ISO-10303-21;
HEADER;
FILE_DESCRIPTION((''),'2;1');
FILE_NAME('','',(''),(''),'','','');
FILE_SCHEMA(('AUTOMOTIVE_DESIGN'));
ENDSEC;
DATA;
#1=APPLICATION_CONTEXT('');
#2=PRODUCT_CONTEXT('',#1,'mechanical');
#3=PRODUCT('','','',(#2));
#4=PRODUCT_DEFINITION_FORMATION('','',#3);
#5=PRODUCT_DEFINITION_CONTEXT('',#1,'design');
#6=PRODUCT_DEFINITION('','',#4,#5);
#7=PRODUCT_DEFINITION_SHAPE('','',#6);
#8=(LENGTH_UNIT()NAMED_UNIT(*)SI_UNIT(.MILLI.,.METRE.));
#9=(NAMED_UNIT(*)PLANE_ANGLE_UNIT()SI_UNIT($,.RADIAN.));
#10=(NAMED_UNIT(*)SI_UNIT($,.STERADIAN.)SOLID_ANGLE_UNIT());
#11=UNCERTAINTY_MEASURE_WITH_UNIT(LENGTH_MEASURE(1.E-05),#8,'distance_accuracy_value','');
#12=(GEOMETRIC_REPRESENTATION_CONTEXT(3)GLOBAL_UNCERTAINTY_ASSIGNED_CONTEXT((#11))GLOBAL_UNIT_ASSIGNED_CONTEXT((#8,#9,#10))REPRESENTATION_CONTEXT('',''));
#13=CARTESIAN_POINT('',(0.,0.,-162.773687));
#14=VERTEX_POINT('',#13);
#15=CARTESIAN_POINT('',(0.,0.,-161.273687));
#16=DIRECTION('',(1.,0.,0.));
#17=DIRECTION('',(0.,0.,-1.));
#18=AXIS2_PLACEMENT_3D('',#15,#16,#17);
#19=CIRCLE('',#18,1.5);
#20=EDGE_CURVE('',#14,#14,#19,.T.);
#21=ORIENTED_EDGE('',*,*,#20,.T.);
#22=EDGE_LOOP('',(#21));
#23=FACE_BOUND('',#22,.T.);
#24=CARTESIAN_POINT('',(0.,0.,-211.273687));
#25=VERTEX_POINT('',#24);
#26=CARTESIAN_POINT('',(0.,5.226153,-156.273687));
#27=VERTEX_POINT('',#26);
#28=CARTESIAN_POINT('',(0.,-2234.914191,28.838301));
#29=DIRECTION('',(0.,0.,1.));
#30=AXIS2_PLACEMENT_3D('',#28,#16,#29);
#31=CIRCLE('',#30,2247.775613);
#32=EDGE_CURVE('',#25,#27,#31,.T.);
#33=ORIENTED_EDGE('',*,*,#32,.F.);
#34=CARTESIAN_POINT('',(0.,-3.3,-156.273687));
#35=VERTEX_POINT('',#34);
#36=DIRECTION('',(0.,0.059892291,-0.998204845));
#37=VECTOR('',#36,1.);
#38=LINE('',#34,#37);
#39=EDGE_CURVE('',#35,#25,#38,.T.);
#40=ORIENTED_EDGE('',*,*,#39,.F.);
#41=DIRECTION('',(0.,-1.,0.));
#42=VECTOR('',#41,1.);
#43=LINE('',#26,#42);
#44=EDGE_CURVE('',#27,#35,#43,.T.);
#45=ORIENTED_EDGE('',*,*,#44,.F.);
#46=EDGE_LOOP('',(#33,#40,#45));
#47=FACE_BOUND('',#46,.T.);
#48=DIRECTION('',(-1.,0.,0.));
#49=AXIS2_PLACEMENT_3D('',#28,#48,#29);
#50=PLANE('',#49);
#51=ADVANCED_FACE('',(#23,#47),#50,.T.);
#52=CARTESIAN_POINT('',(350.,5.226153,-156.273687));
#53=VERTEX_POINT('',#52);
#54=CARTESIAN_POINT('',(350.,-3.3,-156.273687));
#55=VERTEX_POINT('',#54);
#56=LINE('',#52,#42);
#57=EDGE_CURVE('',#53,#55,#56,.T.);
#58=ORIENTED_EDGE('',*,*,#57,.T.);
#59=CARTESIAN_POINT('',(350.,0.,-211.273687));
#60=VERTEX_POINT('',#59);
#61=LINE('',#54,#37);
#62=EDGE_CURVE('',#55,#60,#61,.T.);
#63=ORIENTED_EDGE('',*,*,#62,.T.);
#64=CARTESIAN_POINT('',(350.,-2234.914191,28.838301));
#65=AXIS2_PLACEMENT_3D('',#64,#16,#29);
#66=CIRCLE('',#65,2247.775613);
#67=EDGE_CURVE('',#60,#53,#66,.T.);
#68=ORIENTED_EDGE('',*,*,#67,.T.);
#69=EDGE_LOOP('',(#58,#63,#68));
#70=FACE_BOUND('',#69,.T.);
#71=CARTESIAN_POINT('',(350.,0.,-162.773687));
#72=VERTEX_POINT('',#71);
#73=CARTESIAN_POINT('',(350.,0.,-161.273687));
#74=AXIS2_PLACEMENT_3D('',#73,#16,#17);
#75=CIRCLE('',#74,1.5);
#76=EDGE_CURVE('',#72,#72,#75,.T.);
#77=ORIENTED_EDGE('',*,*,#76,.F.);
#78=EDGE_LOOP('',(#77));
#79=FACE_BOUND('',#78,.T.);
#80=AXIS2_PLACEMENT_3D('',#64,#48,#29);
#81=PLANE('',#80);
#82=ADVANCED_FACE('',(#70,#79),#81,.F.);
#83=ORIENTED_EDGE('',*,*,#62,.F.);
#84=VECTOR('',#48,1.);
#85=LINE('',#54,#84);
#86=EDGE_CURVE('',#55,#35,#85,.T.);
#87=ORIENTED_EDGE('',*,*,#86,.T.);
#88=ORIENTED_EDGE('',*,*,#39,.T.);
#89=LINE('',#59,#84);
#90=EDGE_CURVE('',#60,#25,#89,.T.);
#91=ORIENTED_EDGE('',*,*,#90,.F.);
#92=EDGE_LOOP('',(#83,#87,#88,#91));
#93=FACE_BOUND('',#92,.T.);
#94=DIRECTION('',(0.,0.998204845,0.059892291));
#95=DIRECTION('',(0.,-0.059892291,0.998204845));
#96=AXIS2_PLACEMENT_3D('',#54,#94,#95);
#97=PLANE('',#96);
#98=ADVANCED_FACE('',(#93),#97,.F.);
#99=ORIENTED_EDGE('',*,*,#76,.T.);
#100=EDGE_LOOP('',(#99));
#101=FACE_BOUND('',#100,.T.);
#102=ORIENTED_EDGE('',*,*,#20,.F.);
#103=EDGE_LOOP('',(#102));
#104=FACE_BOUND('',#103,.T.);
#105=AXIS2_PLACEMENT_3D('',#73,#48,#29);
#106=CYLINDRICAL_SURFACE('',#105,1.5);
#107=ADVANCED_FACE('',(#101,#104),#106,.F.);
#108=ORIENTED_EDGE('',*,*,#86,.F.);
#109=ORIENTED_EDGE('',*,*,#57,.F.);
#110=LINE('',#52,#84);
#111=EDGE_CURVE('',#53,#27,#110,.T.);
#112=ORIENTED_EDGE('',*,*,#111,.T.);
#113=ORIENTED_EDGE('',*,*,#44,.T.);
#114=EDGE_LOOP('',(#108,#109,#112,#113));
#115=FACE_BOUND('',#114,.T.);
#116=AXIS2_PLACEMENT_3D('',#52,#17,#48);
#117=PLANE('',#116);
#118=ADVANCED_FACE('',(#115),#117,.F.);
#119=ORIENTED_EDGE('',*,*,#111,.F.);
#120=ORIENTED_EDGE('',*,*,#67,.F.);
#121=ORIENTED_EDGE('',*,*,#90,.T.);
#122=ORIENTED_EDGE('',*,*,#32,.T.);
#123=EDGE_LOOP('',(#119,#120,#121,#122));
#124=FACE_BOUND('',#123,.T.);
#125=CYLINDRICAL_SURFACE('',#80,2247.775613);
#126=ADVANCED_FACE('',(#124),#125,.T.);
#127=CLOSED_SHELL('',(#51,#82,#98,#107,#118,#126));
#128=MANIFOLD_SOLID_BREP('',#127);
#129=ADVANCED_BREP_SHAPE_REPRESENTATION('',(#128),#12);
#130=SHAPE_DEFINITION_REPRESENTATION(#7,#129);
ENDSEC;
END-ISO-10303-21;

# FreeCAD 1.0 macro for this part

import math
import FreeCAD as App
import Part
import Sketcher

doc = App.newDocument("Part")
params = doc.addObject("Spreadsheet::Sheet", "Params")
for row, (alias, value) in enumerate([
    ("sketch1_diameter", "3 mm"),
    ("pad1_length", "350 mm"),
], start=1):
    params.set(f"A{row}", alias)
    params.set(f"B{row}", "=" + value)
    params.setAlias(f"B{row}", alias)

body = doc.addObject("PartDesign::Body", "Body")

# Sketch on YZ plane
sketch1 = body.newObject("Sketcher::SketchObject", "Sketch")
sketch1.AttachmentSupport = (doc.getObject("YZ_Plane"), [""])
sketch1.MapMode = "FlatFace"
sketch1.addGeometry([
    Part.LineSegment(App.Vector(-3.3, -156.273687, 0), App.Vector(0, -211.273687, 0)),
    Part.ArcOfCircle(Part.Circle(App.Vector(-2234.914188, 28.8383, 0), App.Vector(0, 0, 1), 2247.775611), math.radians(-6.132153), math.radians(-4.723853)),
    Part.LineSegment(App.Vector(5.226153, -156.273687, 0), App.Vector(-3.3, -156.273687, 0)),
    Part.Circle(App.Vector(0, -161.273687, 0), App.Vector(0, 0, 1), 1.5),
], False)
sketch1.addConstraint([
    Sketcher.Constraint("Coincident", 0, 2, 1, 1),
    Sketcher.Constraint("Coincident", 1, 2, 2, 1),
    Sketcher.Constraint("Coincident", 2, 2, 0, 1),
    Sketcher.Constraint("Horizontal", 2),
    Sketcher.Constraint("PointOnObject", 3, 3, -2),
    Sketcher.Constraint("PointOnObject", 0, 2, -2),
    Sketcher.Constraint("Diameter", 3, 3.0),
    Sketcher.Constraint("DistanceY", 0, 2, 3, 3, 50.0),
    Sketcher.Constraint("DistanceY", 3, 3, 2, 2, 5.0),
    Sketcher.Constraint("DistanceX", 2, 2, -1, 1, 3.3),
    Sketcher.Constraint("Radius", 1, 2247.775611),
    Sketcher.Constraint("DistanceY", -1, 1, 1, 3, 28.8383),
    Sketcher.Constraint("DistanceX", 2, 2, 2, 1, 8.526153),
])
sketch1.setExpression("Constraints[6]", "Params.sketch1_diameter")
pad1 = body.newObject("PartDesign::Pad", "Pad")
pad1.Profile = sketch1
pad1.setExpression("Length", "Params.pad1_length")

doc.recompute()
